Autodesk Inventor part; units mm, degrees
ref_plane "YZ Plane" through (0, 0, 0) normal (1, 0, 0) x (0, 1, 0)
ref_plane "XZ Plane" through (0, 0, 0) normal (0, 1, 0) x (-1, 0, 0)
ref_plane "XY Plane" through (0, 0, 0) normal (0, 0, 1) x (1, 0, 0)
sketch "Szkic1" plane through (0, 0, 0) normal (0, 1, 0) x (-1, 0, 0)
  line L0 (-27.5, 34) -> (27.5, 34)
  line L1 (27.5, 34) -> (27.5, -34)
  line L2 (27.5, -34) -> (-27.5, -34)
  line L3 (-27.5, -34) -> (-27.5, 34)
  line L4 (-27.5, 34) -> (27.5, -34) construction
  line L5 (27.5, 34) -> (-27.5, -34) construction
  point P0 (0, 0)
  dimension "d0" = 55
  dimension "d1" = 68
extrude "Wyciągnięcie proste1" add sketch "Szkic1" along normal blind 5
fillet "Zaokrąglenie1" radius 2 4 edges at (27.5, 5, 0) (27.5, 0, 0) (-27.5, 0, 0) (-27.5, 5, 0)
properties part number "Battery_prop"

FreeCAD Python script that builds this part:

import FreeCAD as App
import Part
import Sketcher
Q = App.Units.Quantity


def edges_at(feature, points):
    """Names of the edges that pass closest to the given points."""
    edges = feature.Shape.Edges
    near = lambda p: min(range(len(edges)), key=lambda i: edges[i].distToShape(Part.Vertex(*p))[0])
    return sorted({f"Edge{near(p) + 1}" for p in points})

doc = App.newDocument("Part")
body = doc.addObject("PartDesign::Body", "Body")

sketch1 = body.newObject("Sketcher::SketchObject", "Sketch")
sketch1.AttachmentSupport = (doc.getObject("XZ_Plane"), [""])
sketch1.MapMode = "FlatFace"
sketch1.addGeometry([
    Part.LineSegment(App.Vector(-28, 34, 0), App.Vector(28, 34, 0)),
    Part.LineSegment(App.Vector(28, 34, 0), App.Vector(28, -34, 0)),
    Part.LineSegment(App.Vector(28, -34, 0), App.Vector(-28, -34, 0)),
    Part.LineSegment(App.Vector(-28, -34, 0), App.Vector(-28, 34, 0)),
], False)
sketch1.addConstraint([
    Sketcher.Constraint("Coincident", 0, 2, 1, 1),
    Sketcher.Constraint("Coincident", 1, 2, 2, 1),
    Sketcher.Constraint("Coincident", 2, 2, 3, 1),
    Sketcher.Constraint("Coincident", 3, 2, 0, 1),
    Sketcher.Constraint("Horizontal", 0),
    Sketcher.Constraint("Vertical", 1),
    Sketcher.Constraint("Horizontal", 2),
    Sketcher.Constraint("Vertical", 3),
    Sketcher.Constraint("Symmetric", 0, 2, 2, 2, -1, 1),
    Sketcher.Constraint("DistanceX", 0, 1, 0, 2, Q("55 mm")),
    Sketcher.Constraint("DistanceY", 1, 2, 1, 1, Q("68 mm")),
])
pad1 = body.newObject("PartDesign::Pad", "Pad")
pad1.Profile = sketch1
pad1.Length = 5
pad1.Reversed = True
doc.recompute()

fillet = body.newObject("PartDesign::Fillet", "Fillet")
fillet.Base = (pad1, edges_at(pad1, [
    (27.5, 5, 0),
    (27.5, 0, 0),
    (-27.5, 0, 0),
    (-27.5, 5, 0),
]))
fillet.Radius = 2

doc.recompute()
